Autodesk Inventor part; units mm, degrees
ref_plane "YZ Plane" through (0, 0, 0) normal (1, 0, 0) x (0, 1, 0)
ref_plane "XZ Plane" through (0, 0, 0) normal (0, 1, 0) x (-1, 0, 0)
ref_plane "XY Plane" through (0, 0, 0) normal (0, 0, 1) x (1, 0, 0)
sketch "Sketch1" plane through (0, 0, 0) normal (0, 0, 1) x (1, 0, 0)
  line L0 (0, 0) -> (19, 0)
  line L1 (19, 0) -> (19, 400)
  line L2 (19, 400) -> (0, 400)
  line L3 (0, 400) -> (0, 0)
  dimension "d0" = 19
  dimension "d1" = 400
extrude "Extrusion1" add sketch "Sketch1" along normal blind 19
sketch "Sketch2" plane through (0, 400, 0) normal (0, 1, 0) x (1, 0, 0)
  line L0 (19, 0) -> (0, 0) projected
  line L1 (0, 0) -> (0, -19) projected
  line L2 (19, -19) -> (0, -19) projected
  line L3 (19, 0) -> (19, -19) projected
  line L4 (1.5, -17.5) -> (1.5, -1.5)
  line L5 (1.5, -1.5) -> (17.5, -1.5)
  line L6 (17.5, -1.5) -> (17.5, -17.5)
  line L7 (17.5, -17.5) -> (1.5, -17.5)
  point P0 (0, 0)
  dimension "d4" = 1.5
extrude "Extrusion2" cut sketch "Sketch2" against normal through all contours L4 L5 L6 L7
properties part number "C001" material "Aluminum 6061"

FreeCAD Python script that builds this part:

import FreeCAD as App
import Part
import Sketcher

V = App.Vector


def add_polygon(sketch, points):
    """Adds a closed chain of lines whose ends are joined by coincident constraints."""
    first, n = sketch.GeometryCount, len(points)
    for a, b in zip(points, points[1:] + points[:1]):
        sketch.addGeometry(Part.LineSegment(App.Vector(*a, 0), App.Vector(*b, 0)), False)
    for i in range(n):
        sketch.addConstraint(Sketcher.Constraint("Coincident", first + i, 2, first + (i + 1) % n, 1))

doc = App.newDocument("Part")
body = doc.addObject("PartDesign::Body", "Body")

# Sketch on XY plane
sketch1 = body.newObject("Sketcher::SketchObject", "Sketch")
sketch1.AttachmentSupport = (doc.getObject("XY_Plane"), [""])
sketch1.MapMode = "FlatFace"
add_polygon(sketch1, [(0, 400), (0, 0), (19, 0), (19, 400)])  # lines 0-3
sketch1.addConstraint([
    Sketcher.Constraint("Vertical", 0),
    Sketcher.Constraint("Horizontal", 1),
    Sketcher.Constraint("Vertical", 2),
    Sketcher.Constraint("Horizontal", 3),
    Sketcher.Constraint("Coincident", 0, 2, -1, 1),
    Sketcher.Constraint("DistanceX", 1, 1, 1, 2, 19.0),
    Sketcher.Constraint("DistanceY", 0, 2, 0, 1, 400.0),
])
pad1 = body.newObject("PartDesign::Pad", "Pad")
pad1.Profile = sketch1
pad1.Length = 19

# Sketch on XZ plane
sketch2 = body.newObject("Sketcher::SketchObject", "Sketch001")
sketch2.AttachmentSupport = (doc.getObject("XZ_Plane"), [""])
sketch2.MapMode = "FlatFace"
sketch2.AttachmentOffset = App.Placement(V(0, 0, -400), App.Rotation())
add_polygon(sketch2, [(2, 2), (2, 18), (18, 18), (18, 2)])  # lines 0-3
sketch2.addConstraint([
    Sketcher.Constraint("Vertical", 0),
    Sketcher.Constraint("Horizontal", 1),
    Sketcher.Constraint("Vertical", 2),
    Sketcher.Constraint("Horizontal", 3),
    Sketcher.Constraint("Equal", 3, 0),
    Sketcher.Constraint("DistanceX", -1, 1, 0, 2, 1.5),
    Sketcher.Constraint("DistanceY", -1, 1, 2, 2, 1.5),
    Sketcher.Constraint("DistanceX", 1, 1, 1, 2, 16.0),
])
pocket1 = body.newObject("PartDesign::Pocket", "Pocket")
pocket1.Profile = sketch2
pocket1.Type = "ThroughAll"
pocket1.Reversed = True

doc.recompute()
